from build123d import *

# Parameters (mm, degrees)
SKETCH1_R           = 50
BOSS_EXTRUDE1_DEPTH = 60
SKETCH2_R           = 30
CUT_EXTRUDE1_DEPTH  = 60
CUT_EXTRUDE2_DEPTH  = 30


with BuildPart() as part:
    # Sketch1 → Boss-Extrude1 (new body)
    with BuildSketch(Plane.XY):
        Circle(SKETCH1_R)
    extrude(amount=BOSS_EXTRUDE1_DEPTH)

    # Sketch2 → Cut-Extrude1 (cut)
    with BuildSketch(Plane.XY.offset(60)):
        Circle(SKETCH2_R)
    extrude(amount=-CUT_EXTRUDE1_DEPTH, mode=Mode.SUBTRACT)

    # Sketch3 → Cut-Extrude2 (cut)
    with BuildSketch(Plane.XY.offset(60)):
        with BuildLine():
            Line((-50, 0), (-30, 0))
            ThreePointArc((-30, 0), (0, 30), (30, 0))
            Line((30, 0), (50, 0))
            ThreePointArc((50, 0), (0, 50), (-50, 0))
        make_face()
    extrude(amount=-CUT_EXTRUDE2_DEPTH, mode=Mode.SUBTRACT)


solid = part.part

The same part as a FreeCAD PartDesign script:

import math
import FreeCAD as App
import Part
import Sketcher

V = App.Vector

doc = App.newDocument("Part")
body = doc.addObject("PartDesign::Body", "Body")

sketch1 = body.newObject("Sketcher::SketchObject", "Sketch")
sketch1.AttachmentSupport = (doc.getObject("XY_Plane"), [""])
sketch1.MapMode = "FlatFace"
sketch1.addGeometry(Part.Circle(V(0, 0, 0), V(0, 0, 1), 50), False)
sketch1.addConstraint(Sketcher.Constraint("Coincident", 0, 3, -1, 1))
sketch1.addConstraint(Sketcher.Constraint("Diameter", 0, 100.0))
pad1 = body.newObject("PartDesign::Pad", "Pad")
pad1.Profile = sketch1
pad1.Length = 60

sketch2 = body.newObject("Sketcher::SketchObject", "Sketch001")
sketch2.AttachmentSupport = (doc.getObject("XY_Plane"), [""])
sketch2.MapMode = "FlatFace"
sketch2.AttachmentOffset = App.Placement(V(0, 0, 60), App.Rotation())
sketch2.addGeometry(Part.Circle(V(0, 0, 0), V(0, 0, 1), 30), False)
sketch2.addConstraint(Sketcher.Constraint("Coincident", 0, 3, -1, 1))
sketch2.addConstraint(Sketcher.Constraint("Diameter", 0, 60.0))
pocket1 = body.newObject("PartDesign::Pocket", "Pocket")
pocket1.Profile = sketch2
pocket1.Length = 60

sketch3 = body.newObject("Sketcher::SketchObject", "Sketch002")
sketch3.AttachmentSupport = (doc.getObject("XY_Plane"), [""])
sketch3.MapMode = "FlatFace"
sketch3.AttachmentOffset = App.Placement(V(0, 0, 60), App.Rotation())
sketch3.addGeometry(Part.LineSegment(V(-50, 0, 0), V(-30, 0, 0)), False)
sketch3.addGeometry(Part.ArcOfCircle(Part.Circle(V(0, 0, 0), V(0, 0, 1), 30), math.radians(0), math.radians(180)), False)
sketch3.addGeometry(Part.LineSegment(V(30, 0, 0), V(50, 0, 0)), False)
sketch3.addGeometry(Part.ArcOfCircle(Part.Circle(V(0, 0, 0), V(0, 0, 1), 50), math.radians(0), math.radians(180)), False)
sketch3.addConstraint(Sketcher.Constraint("Coincident", 0, 2, 1, 2))
sketch3.addConstraint(Sketcher.Constraint("Coincident", 1, 1, 2, 1))
sketch3.addConstraint(Sketcher.Constraint("Coincident", 2, 2, 3, 1))
sketch3.addConstraint(Sketcher.Constraint("Coincident", 3, 2, 0, 1))
sketch3.addConstraint(Sketcher.Constraint("Horizontal", 0))
sketch3.addConstraint(Sketcher.Constraint("Horizontal", 2))
sketch3.addConstraint(Sketcher.Constraint("Coincident", 1, 3, -1, 1))
sketch3.addConstraint(Sketcher.Constraint("Coincident", 3, 3, -1, 1))
sketch3.addConstraint(Sketcher.Constraint("PointOnObject", 0, 2, -1))
sketch3.addConstraint(Sketcher.Constraint("PointOnObject", 1, 1, -1))
sketch3.addConstraint(Sketcher.Constraint("Radius", 1, 30.0))
sketch3.addConstraint(Sketcher.Constraint("Radius", 3, 50.0))
pocket2 = body.newObject("PartDesign::Pocket", "Pocket001")
pocket2.Profile = sketch3
pocket2.Length = 30

doc.recompute()
